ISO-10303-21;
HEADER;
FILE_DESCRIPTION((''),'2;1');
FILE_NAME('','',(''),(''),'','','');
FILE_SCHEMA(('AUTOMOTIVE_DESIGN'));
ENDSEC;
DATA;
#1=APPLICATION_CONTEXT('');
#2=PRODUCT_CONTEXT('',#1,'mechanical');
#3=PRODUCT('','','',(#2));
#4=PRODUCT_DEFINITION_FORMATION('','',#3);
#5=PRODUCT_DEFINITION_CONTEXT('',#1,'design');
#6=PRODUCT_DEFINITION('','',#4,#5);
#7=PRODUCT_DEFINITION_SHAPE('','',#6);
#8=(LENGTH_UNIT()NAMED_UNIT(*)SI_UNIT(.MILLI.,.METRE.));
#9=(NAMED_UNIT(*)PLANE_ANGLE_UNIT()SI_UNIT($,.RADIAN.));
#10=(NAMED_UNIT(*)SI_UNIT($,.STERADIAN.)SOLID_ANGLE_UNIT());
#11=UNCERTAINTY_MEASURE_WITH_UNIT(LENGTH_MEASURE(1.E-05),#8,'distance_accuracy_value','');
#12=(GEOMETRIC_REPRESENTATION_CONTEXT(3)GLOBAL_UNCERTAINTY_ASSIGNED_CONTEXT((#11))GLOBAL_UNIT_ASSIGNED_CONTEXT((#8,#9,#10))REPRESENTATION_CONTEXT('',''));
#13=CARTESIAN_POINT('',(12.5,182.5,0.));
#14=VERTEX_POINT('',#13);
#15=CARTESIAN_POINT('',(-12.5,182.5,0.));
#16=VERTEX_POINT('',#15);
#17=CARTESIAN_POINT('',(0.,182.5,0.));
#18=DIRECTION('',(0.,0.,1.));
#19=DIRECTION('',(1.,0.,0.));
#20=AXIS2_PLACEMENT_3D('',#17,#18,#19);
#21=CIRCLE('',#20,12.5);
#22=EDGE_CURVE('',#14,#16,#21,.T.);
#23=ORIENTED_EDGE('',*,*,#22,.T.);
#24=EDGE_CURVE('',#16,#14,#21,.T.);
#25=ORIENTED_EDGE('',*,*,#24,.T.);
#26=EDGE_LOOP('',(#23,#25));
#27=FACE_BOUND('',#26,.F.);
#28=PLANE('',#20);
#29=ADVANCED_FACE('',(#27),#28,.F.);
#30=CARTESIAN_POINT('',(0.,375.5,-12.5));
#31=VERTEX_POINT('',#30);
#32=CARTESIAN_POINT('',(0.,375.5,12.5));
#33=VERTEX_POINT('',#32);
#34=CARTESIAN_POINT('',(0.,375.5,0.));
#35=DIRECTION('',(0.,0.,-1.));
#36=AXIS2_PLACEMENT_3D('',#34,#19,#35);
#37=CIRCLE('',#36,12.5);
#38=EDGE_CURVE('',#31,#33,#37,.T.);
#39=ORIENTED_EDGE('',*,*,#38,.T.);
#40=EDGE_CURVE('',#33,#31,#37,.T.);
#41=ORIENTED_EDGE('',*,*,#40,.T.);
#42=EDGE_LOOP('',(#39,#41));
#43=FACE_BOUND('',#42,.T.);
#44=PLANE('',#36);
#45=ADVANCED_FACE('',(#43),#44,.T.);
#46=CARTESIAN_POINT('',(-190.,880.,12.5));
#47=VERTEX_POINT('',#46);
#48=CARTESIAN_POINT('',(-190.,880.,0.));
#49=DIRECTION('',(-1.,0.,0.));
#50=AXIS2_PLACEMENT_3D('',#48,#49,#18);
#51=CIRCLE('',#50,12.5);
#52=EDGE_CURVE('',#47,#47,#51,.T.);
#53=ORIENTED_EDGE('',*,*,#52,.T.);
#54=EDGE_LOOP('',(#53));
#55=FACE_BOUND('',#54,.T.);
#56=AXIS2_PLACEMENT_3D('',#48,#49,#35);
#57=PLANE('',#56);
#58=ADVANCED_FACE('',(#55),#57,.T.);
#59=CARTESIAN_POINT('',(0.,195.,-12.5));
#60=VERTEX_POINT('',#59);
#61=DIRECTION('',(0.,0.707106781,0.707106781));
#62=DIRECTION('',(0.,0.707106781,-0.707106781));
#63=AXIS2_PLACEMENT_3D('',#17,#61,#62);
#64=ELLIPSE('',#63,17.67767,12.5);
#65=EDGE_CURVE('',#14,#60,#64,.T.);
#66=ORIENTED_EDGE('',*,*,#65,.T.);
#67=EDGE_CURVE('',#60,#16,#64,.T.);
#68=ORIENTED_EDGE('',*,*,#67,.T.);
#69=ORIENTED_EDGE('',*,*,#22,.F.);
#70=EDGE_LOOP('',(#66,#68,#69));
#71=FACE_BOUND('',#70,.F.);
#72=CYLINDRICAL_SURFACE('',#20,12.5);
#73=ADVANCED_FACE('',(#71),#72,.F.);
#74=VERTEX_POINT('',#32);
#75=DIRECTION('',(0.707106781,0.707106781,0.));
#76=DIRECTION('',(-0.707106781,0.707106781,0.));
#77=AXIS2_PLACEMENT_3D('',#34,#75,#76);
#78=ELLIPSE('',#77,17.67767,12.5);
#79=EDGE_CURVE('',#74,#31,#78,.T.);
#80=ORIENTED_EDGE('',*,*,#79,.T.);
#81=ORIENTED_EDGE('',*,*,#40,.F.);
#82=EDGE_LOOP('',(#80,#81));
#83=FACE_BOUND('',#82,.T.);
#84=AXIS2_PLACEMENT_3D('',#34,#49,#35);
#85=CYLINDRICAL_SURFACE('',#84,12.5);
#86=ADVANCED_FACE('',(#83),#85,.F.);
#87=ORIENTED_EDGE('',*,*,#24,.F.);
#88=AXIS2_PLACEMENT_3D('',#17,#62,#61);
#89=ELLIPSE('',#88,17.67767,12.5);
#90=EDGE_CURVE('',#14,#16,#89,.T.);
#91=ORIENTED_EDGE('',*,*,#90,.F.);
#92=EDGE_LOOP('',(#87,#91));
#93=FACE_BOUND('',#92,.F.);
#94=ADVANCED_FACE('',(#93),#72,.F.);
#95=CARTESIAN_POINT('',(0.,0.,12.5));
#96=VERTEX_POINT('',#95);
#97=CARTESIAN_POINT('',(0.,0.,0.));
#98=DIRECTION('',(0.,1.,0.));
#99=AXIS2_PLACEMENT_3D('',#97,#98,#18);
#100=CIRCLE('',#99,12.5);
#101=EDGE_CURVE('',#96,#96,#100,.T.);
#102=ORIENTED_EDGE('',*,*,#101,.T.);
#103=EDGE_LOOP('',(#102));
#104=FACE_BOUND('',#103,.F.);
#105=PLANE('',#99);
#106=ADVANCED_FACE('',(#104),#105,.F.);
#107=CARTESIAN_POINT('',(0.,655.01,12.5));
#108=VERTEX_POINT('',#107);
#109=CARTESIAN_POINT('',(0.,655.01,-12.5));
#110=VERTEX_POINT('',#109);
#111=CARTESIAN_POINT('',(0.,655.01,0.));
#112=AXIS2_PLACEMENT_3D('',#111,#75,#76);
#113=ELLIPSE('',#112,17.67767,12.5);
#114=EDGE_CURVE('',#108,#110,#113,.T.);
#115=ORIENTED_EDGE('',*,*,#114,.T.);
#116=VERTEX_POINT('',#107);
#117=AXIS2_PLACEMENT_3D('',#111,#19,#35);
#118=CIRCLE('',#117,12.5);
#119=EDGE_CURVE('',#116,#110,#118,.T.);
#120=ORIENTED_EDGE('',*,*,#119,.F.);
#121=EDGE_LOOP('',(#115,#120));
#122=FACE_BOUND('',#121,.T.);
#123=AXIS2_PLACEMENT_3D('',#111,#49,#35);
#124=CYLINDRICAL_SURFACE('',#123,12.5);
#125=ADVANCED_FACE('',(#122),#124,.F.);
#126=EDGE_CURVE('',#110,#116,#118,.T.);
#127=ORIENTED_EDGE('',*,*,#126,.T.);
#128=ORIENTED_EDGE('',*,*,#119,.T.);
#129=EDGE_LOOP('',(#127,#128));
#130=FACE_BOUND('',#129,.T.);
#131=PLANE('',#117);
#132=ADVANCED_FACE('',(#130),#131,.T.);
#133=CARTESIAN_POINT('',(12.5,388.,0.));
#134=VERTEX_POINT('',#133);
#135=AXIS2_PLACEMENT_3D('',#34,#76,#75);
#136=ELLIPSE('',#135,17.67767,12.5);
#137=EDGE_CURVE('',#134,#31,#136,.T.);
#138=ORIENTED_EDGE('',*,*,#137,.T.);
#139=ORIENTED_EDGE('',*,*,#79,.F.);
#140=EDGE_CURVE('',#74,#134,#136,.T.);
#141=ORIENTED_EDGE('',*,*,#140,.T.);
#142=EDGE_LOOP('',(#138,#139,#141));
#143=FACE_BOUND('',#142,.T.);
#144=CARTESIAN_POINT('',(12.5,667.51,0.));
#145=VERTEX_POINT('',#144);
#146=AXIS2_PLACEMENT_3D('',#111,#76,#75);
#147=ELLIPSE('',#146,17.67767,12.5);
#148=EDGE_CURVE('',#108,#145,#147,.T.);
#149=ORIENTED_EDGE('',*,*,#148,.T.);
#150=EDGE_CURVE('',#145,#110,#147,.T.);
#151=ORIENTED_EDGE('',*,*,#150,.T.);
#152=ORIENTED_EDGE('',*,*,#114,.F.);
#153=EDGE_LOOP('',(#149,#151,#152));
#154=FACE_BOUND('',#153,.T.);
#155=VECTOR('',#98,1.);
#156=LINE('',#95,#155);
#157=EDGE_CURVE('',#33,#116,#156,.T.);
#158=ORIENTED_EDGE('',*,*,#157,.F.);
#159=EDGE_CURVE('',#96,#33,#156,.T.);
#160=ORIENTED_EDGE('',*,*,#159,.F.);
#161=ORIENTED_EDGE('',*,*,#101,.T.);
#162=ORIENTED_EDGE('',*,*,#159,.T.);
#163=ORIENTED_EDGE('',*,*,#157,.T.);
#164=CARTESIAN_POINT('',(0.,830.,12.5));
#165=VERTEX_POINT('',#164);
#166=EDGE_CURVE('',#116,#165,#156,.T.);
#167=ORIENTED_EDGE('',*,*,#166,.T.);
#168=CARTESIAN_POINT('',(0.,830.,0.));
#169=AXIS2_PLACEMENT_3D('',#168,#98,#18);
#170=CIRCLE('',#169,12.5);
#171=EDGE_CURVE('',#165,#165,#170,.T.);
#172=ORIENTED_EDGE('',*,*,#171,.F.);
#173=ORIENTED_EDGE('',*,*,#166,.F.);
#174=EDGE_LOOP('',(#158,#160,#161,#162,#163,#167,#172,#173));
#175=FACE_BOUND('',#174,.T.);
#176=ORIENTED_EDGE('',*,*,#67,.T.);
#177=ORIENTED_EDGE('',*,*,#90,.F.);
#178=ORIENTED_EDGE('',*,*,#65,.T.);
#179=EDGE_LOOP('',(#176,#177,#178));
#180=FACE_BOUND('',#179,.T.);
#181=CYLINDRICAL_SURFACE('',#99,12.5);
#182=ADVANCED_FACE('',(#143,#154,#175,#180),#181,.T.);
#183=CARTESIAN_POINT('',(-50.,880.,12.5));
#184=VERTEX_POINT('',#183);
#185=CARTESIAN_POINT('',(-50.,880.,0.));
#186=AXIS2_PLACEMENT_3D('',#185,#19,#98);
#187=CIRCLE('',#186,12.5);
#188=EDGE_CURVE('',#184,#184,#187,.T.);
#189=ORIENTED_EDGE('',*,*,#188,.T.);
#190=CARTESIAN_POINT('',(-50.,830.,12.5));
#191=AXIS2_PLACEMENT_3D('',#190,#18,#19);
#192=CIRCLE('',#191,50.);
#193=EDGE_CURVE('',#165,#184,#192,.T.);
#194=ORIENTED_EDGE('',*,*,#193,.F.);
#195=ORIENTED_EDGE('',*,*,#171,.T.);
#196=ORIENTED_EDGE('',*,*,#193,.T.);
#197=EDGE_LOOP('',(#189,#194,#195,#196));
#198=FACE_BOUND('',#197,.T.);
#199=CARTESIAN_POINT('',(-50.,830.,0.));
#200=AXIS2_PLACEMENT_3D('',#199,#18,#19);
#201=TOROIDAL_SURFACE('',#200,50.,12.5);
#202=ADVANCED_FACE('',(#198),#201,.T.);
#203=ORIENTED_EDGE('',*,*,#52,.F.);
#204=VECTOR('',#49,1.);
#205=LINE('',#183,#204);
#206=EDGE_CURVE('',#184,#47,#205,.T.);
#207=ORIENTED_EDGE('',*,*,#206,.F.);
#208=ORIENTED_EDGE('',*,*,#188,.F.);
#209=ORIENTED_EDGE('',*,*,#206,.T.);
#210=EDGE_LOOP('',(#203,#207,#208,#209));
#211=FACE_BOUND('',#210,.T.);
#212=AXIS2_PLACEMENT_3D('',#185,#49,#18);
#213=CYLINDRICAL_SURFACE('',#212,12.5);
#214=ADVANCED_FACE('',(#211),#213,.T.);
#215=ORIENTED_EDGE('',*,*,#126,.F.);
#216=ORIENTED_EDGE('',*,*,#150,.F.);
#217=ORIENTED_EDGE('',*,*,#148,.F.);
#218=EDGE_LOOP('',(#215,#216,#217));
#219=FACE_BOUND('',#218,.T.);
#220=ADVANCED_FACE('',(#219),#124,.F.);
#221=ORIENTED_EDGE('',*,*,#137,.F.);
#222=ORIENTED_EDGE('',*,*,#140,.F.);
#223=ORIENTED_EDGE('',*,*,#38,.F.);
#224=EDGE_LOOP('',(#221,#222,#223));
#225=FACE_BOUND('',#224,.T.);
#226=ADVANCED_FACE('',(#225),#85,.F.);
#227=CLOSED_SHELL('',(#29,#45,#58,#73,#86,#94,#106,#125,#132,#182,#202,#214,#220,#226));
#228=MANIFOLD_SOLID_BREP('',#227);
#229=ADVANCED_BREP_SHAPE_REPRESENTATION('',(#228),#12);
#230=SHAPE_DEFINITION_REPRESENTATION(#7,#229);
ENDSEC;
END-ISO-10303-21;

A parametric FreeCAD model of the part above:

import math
import FreeCAD as App
import Part
import Sketcher

V = App.Vector

doc = App.newDocument("Part")
body = doc.addObject("PartDesign::Body", "Body")

sketch1 = doc.addObject("Sketcher::SketchObject", "Sketch")
body.addObject(sketch1)
sketch1.AttachmentSupport = (doc.XZ_Plane, [""])
sketch1.MapMode = "FlatFace"
sketch1.addGeometry(Part.Circle(V(0, 0, 0), V(0, 0, 1), 12.5), False)
sketch1.addConstraint(Sketcher.Constraint("Coincident", 0, 3, -1, 1))
sketch1.addConstraint(Sketcher.Constraint("Diameter", 0, 25.0))

sketch2 = doc.addObject("Sketcher::SketchObject", "Sketch001")
body.addObject(sketch2)
sketch2.AttachmentSupport = (doc.XY_Plane, [""])
sketch2.MapMode = "FlatFace"
sketch2.addGeometry(Part.LineSegment(V(0, 0, 0), V(0, 830, 0)), False)
sketch2.addGeometry(Part.ArcOfCircle(Part.Circle(V(-50, 830, 0), V(0, 0, 1), 50), math.radians(0), math.radians(90)), False)
sketch2.addGeometry(Part.LineSegment(V(-50, 880, 0), V(-190, 880, 0)), False)
sketch2.addConstraint(Sketcher.Constraint("Tangent", 0, 2, 1, 1))
sketch2.addConstraint(Sketcher.Constraint("Tangent", 1, 2, 2, 1))
sketch2.addConstraint(Sketcher.Constraint("Vertical", 0))
sketch2.addConstraint(Sketcher.Constraint("Horizontal", 2))
sketch2.addConstraint(Sketcher.Constraint("Coincident", 0, 1, -1, 1))
sketch2.addConstraint(Sketcher.Constraint("Radius", 1, 50.0))
sketch2.addConstraint(Sketcher.Constraint("DistanceX", 2, 2, 2, 1, 140.0))
sketch2.addConstraint(Sketcher.Constraint("DistanceY", 0, 1, 0, 2, 830.0))
doc.recompute()

additivepipe = doc.addObject("PartDesign::AdditivePipe", "AdditivePipe")
body.addObject(additivepipe)
additivepipe.Profile = sketch1
additivepipe.Spine = (sketch2, ["Edge1", "Edge2", "Edge3"])

sketch3 = doc.addObject("Sketcher::SketchObject", "Sketch002")
body.addObject(sketch3)
sketch3.AttachmentSupport = (doc.YZ_Plane, [""])
sketch3.MapMode = "FlatFace"
sketch3.addGeometry(Part.Circle(V(655.01, 0, 0), V(0, 0, 1), 12.5), False)
sketch3.addGeometry(Part.Circle(V(375.5, 0, 0), V(0, 0, 1), 12.5), False)
sketch3.addConstraint(Sketcher.Constraint("Equal", 0, 1))
sketch3.addConstraint(Sketcher.Constraint("PointOnObject", 0, 3, -1))
sketch3.addConstraint(Sketcher.Constraint("PointOnObject", 1, 3, -1))
sketch3.addConstraint(Sketcher.Constraint("Diameter", 0, 25.0))
sketch3.addConstraint(Sketcher.Constraint("DistanceX", -1, 1, 1, 3, 375.5))
sketch3.addConstraint(Sketcher.Constraint("DistanceX", -1, 1, 0, 3, 655.01))
pocket1 = doc.addObject("PartDesign::Pocket", "Pocket")
body.addObject(pocket1)
pocket1.Profile = sketch3
pocket1.Length = 21
pocket1.Reversed = True

sketch4 = doc.addObject("Sketcher::SketchObject", "Sketch003")
body.addObject(sketch4)
sketch4.AttachmentSupport = (doc.XY_Plane, [""])
sketch4.MapMode = "FlatFace"
sketch4.addGeometry(Part.Circle(V(0, 182.5, 0), V(0, 0, 1), 12.5), False)
sketch4.addConstraint(Sketcher.Constraint("PointOnObject", 0, 3, -2))
sketch4.addConstraint(Sketcher.Constraint("Diameter", 0, 25.0))
sketch4.addConstraint(Sketcher.Constraint("DistanceY", -1, 1, 0, 3, 182.5))
pocket2 = doc.addObject("PartDesign::Pocket", "Pocket001")
body.addObject(pocket2)
pocket2.Profile = sketch4
pocket2.Length = 13

doc.recompute()
